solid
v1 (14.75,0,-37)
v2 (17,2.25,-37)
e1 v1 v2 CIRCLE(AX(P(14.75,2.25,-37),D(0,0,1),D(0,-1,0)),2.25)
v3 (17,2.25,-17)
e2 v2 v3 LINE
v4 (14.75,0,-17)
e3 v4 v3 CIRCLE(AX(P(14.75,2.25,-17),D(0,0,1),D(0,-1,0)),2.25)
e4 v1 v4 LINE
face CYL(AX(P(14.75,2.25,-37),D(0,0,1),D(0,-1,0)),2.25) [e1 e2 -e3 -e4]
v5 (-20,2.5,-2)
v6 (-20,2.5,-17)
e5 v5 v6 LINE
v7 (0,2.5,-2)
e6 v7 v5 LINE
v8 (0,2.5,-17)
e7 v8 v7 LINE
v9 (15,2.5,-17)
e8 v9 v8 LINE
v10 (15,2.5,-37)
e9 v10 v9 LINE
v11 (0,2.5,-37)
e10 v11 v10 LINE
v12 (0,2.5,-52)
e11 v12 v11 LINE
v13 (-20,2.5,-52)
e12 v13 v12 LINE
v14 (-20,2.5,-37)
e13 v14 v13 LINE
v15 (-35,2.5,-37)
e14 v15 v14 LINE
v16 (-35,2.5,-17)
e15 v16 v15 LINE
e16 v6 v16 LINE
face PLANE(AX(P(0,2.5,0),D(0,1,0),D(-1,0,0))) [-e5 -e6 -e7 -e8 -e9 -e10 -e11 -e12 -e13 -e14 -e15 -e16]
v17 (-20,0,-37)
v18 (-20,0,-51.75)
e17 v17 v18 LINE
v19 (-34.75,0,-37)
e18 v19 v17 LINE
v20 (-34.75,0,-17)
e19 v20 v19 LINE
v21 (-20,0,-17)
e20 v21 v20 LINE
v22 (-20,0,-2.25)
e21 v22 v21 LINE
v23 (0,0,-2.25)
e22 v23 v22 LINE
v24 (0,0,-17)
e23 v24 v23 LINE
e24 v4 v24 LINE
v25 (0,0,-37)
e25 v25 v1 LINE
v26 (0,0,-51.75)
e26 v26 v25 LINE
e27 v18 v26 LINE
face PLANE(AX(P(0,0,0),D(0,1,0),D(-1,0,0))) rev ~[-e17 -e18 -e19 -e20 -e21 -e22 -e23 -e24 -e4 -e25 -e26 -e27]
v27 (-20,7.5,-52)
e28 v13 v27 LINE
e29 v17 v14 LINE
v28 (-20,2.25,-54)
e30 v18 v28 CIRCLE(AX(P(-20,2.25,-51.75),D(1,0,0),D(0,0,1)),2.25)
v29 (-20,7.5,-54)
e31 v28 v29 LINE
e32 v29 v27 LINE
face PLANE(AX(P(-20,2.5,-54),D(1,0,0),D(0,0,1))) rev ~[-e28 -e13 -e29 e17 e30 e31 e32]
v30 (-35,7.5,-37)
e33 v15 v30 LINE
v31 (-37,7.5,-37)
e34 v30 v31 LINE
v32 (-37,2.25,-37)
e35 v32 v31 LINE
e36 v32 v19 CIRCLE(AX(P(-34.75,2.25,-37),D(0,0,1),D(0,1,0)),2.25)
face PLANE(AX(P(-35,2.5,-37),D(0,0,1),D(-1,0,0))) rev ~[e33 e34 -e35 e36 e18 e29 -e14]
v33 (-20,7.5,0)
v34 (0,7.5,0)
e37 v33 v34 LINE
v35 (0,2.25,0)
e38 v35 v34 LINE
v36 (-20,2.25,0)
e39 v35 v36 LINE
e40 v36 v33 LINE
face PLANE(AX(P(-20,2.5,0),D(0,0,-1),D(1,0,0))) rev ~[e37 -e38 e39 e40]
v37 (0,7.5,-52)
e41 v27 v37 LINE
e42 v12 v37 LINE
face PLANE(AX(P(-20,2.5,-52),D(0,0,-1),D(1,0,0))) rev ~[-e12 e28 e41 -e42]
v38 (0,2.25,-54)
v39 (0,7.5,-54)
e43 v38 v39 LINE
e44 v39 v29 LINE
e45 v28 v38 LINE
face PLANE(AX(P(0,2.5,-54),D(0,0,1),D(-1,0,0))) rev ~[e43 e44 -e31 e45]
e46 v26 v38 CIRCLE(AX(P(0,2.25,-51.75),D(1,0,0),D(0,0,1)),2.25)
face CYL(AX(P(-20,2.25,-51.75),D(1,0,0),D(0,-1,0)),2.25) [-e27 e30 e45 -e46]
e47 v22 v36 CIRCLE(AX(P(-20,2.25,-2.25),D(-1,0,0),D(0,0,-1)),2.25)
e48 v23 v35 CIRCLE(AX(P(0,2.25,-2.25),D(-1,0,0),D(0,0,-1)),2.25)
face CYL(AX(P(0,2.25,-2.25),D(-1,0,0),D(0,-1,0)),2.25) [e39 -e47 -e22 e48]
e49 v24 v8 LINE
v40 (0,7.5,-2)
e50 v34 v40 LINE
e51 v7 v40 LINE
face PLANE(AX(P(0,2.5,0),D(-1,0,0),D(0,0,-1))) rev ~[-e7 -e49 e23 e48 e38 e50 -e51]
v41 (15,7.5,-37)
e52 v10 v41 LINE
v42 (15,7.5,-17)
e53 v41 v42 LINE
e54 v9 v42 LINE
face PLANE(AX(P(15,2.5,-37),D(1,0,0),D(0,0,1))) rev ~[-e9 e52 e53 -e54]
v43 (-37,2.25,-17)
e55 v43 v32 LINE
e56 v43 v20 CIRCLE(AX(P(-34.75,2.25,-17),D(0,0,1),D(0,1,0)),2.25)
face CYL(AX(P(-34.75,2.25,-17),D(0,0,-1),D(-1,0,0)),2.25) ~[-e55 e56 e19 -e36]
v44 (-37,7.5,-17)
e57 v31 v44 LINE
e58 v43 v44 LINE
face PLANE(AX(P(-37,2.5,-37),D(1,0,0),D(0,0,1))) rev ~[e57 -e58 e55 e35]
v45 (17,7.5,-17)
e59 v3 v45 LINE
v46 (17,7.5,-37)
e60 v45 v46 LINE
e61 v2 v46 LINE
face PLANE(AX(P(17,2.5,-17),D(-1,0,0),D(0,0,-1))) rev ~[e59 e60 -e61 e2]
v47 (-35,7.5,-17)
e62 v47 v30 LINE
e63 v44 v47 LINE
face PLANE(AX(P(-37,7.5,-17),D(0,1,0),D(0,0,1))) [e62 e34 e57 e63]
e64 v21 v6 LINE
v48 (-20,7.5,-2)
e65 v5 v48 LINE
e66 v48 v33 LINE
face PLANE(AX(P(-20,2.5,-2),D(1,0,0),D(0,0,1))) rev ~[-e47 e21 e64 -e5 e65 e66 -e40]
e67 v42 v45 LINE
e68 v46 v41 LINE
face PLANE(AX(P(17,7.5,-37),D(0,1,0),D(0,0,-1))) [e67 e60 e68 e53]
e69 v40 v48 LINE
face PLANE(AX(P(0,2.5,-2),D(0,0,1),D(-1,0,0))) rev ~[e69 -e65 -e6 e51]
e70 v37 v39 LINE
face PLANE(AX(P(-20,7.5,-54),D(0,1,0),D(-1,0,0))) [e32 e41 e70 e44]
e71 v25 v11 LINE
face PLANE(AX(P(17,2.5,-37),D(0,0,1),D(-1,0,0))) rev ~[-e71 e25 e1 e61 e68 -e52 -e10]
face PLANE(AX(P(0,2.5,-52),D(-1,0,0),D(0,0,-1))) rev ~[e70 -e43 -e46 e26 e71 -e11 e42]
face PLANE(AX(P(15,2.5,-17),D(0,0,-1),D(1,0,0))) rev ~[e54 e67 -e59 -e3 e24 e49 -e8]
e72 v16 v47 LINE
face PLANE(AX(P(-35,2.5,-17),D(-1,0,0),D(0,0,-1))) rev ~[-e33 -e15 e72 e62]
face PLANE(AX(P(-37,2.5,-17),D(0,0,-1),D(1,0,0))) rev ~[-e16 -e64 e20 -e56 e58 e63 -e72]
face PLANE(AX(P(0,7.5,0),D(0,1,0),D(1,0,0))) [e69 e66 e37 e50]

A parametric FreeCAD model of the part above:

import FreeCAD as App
import Part
import Sketcher

V = App.Vector


def edges_at(feature, points):
    """Names of the edges that pass closest to the given points."""
    edges = feature.Shape.Edges
    near = lambda p: min(range(len(edges)), key=lambda i: edges[i].distToShape(Part.Vertex(*p))[0])
    return sorted({f"Edge{near(p) + 1}" for p in points})


def add_polygon(sketch, points):
    """Adds a closed chain of lines whose ends are joined by coincident constraints."""
    first, n = sketch.GeometryCount, len(points)
    for a, b in zip(points, points[1:] + points[:1]):
        sketch.addGeometry(Part.LineSegment(App.Vector(*a, 0), App.Vector(*b, 0)), False)
    for i in range(n):
        sketch.addConstraint(Sketcher.Constraint("Coincident", first + i, 2, first + (i + 1) % n, 1))

doc = App.newDocument("Part")
body = doc.addObject("PartDesign::Body", "Body")

# Sketch on XZ plane
sketch1 = doc.addObject("Sketcher::SketchObject", "Sketch")
body.addObject(sketch1)
sketch1.AttachmentSupport = (doc.XZ_Plane, [""])
sketch1.MapMode = "FlatFace"
add_polygon(sketch1, [(-20, 0), (0, 0), (0, -17), (17, -17), (17, -37), (0, -37), (0, -54), (-20, -54), (-20, -37), (-37, -37), (-37, -17), (-20, -17)])  # lines 0-11
sketch1.addConstraint([
    Sketcher.Constraint("Horizontal", 0),
    Sketcher.Constraint("Vertical", 1),
    Sketcher.Constraint("Horizontal", 2),
    Sketcher.Constraint("Vertical", 3),
    Sketcher.Constraint("Horizontal", 4),
    Sketcher.Constraint("Vertical", 5),
    Sketcher.Constraint("Horizontal", 6),
    Sketcher.Constraint("Vertical", 7),
    Sketcher.Constraint("Horizontal", 8),
    Sketcher.Constraint("Vertical", 9),
    Sketcher.Constraint("Horizontal", 10),
    Sketcher.Constraint("Vertical", 11),
    Sketcher.Constraint("Coincident", 0, 2, -1, 1),
    Sketcher.Constraint("PointOnObject", 4, 2, -2),
    Sketcher.Constraint("Horizontal", 4, 2, 7, 2),
    Sketcher.Constraint("Horizontal", 2, 2, 9, 2),
    Sketcher.Constraint("Vertical", 7, 2, 10, 2),
    Sketcher.Constraint("Equal", 4, 8),
    Sketcher.Constraint("Equal", 10, 1),
    Sketcher.Constraint("Equal", 6, 3),
    Sketcher.Constraint("Equal", 1, 5),
    Sketcher.Constraint("DistanceX", 0, 1, 0, 2, 20.0),
    Sketcher.Constraint("DistanceY", 5, 2, -1, 1, 54.0),
])
pad1 = doc.addObject("PartDesign::Pad", "Pad")
body.addObject(pad1)
pad1.Profile = sketch1
pad1.Length = 2.5
pad1.Reversed = True

# Sketch on XZ plane
sketch2 = doc.addObject("Sketcher::SketchObject", "Sketch001")
body.addObject(sketch2)
sketch2.AttachmentSupport = (doc.XZ_Plane, [""])
sketch2.MapMode = "FlatFace"
sketch2.AttachmentOffset = App.Placement(V(0, 0, -2.5), App.Rotation())
add_polygon(sketch2, [(-20, -2), (-20, 0), (0, 0), (0, -2)])  # lines 0-3
sketch2.addConstraint([
    Sketcher.Constraint("Vertical", 0),
    Sketcher.Constraint("Horizontal", 1),
    Sketcher.Constraint("Vertical", 2),
    Sketcher.Constraint("Horizontal", 3),
    Sketcher.Constraint("Coincident", 1, 2, -1, 1),
    Sketcher.Constraint("DistanceY", 0, 1, 0, 2, 2.0),
    Sketcher.Constraint("DistanceX", 1, 1, 1, 2, 20.0),
])
pad2 = doc.addObject("PartDesign::Pad", "Pad001")
body.addObject(pad2)
pad2.Profile = sketch2
pad2.Length = 5
pad2.Reversed = True
doc.recompute()

datumline = doc.addObject("PartDesign::Line", "DatumLine")
body.addObject(datumline)
datumline.Placement = App.Placement(V(-10, 0, -27), App.Rotation(V(0, 0, 1), V(0, 1, 0)))
polarpattern = doc.addObject("PartDesign::PolarPattern", "PolarPattern")
body.addObject(polarpattern)
polarpattern.Originals = [pad2]
polarpattern.Axis = (datumline, [""])
polarpattern.Angle = 360
polarpattern.Occurrences = 4
body.Tip = polarpattern
doc.recompute()

fillet = doc.addObject("PartDesign::Fillet", "Fillet")
body.addObject(fillet)
fillet.Base = (polarpattern, edges_at(polarpattern, [
    (-10, 0, 0),
    (-37, 0, -27),
    (-10, 0, -54),
    (17, 0, -27),
]))
fillet.Radius = 2.25

doc.recompute()
